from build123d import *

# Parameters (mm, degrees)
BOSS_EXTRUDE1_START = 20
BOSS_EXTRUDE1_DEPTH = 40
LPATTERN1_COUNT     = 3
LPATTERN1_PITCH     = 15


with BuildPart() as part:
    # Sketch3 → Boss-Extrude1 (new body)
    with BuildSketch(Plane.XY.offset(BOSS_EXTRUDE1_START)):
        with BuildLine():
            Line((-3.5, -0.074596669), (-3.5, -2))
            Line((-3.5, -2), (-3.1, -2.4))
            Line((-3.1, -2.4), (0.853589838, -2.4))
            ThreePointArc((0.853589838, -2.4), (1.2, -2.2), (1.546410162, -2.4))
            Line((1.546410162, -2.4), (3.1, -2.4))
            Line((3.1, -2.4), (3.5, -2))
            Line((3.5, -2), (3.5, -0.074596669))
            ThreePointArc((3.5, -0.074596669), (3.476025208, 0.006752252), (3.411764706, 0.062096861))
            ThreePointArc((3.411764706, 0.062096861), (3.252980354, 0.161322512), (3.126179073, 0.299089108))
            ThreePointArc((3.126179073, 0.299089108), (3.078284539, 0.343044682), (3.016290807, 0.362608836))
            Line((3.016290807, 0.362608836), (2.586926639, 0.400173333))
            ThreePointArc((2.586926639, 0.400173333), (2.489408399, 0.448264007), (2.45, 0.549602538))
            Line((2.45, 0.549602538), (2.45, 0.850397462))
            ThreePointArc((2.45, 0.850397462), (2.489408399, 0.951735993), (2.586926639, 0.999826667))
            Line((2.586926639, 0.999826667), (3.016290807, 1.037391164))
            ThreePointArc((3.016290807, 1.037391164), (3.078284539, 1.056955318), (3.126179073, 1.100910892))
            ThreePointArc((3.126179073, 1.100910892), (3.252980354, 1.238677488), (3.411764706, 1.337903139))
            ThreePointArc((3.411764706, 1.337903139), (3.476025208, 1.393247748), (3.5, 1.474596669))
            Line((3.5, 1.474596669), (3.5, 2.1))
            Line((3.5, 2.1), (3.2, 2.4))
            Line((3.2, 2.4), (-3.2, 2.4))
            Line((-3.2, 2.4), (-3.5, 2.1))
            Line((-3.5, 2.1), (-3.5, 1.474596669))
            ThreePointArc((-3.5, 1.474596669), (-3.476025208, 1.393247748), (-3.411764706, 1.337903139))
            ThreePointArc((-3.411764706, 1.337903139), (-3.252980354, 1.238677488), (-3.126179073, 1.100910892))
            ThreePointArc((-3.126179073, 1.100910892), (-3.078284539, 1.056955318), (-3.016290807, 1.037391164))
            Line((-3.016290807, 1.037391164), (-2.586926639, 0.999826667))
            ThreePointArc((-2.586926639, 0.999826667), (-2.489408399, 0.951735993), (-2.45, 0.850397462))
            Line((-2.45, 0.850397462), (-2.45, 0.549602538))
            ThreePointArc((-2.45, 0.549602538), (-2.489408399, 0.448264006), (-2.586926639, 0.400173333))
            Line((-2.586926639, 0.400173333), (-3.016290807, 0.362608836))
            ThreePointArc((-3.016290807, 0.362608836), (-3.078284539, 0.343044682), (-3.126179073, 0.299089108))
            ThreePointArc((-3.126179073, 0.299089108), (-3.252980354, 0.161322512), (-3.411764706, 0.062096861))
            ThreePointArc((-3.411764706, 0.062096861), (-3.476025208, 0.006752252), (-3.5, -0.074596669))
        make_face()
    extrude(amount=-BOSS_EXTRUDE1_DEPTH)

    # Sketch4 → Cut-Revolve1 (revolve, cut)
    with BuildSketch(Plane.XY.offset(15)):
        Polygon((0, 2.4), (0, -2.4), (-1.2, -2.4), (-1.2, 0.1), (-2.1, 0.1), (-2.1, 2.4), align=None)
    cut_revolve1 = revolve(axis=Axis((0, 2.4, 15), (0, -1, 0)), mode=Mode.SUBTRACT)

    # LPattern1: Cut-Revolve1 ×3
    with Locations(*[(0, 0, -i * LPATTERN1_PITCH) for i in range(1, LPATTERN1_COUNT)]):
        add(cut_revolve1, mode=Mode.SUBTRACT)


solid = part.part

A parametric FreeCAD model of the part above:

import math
import FreeCAD as App
import Part
import Sketcher

V = App.Vector
Q = App.Units.Quantity


def add_polygon(sketch, points):
    """Adds a closed chain of lines whose ends are joined by coincident constraints."""
    first, n = sketch.GeometryCount, len(points)
    for a, b in zip(points, points[1:] + points[:1]):
        sketch.addGeometry(Part.LineSegment(App.Vector(*a, 0), App.Vector(*b, 0)), False)
    for i in range(n):
        sketch.addConstraint(Sketcher.Constraint("Coincident", first + i, 2, first + (i + 1) % n, 1))

doc = App.newDocument("Part")
body = doc.addObject("PartDesign::Body", "Body")

# Sketch on XY plane
sketch1 = doc.addObject("Sketcher::SketchObject", "Sketch")
body.addObject(sketch1)
sketch1.AttachmentSupport = (doc.XY_Plane, [""])
sketch1.MapMode = "FlatFace"
sketch1.AttachmentOffset = App.Placement(V(0, 0, 20), App.Rotation())
sketch1.addGeometry([
    Part.LineSegment(V(-3.5, -0.07, 0), V(-3.5, -2, 0)),  # 0
    Part.LineSegment(V(-3.5, -2, 0), V(-3.1, -2.4, 0)),  # 1
    Part.LineSegment(V(-3.1, -2.4, 0), V(0.85, -2.4, 0)),  # 2
    Part.ArcOfCircle(Part.Circle(V(1.2, -2.6, 0), V(0, 0, 1), 0.4), math.radians(30), math.radians(150)),  # 3
    Part.LineSegment(V(1.55, -2.4, 0), V(3.1, -2.4, 0)),  # 4
    Part.LineSegment(V(3.1, -2.4, 0), V(3.5, -2, 0)),  # 5
    Part.LineSegment(V(3.5, -2, 0), V(3.5, -0.07, 0)),  # 6
    Part.ArcOfCircle(Part.Circle(V(3.35, -0.07, 0), V(0, 0, 1), 0.15), math.radians(0), math.radians(66)),  # 7
    Part.ArcOfCircle(Part.Circle(V(3.7, 0.7, 0), V(0, 0, 1), 0.7), math.radians(-145), math.radians(-114)),  # 8
    Part.ArcOfCircle(Part.Circle(V(3, 0.21, 0), V(0, 0, 1), 0.15), math.radians(35), math.radians(85)),  # 9
    Part.LineSegment(V(3.02, 0.36, 0), V(2.59, 0.4, 0)),  # 10
    Part.ArcOfCircle(Part.Circle(V(2.6, 0.55, 0), V(0, 0, 1), 0.15), math.radians(180), math.radians(265)),  # 11
    Part.LineSegment(V(2.45, 0.55, 0), V(2.45, 0.85, 0)),  # 12
    Part.ArcOfCircle(Part.Circle(V(2.6, 0.85, 0), V(0, 0, 1), 0.15), math.radians(95), math.radians(180)),  # 13
    Part.LineSegment(V(2.59, 1, 0), V(3.02, 1.04, 0)),  # 14
    Part.ArcOfCircle(Part.Circle(V(3, 1.19, 0), V(0, 0, 1), 0.15), math.radians(-85), math.radians(-35)),  # 15
    Part.ArcOfCircle(Part.Circle(V(3.7, 0.7, 0), V(0, 0, 1), 0.7), math.radians(114), math.radians(145)),  # 16
    Part.ArcOfCircle(Part.Circle(V(3.35, 1.47, 0), V(0, 0, 1), 0.15), math.radians(-66), math.radians(0)),  # 17
    Part.LineSegment(V(3.5, 1.47, 0), V(3.5, 2.1, 0)),  # 18
    Part.LineSegment(V(3.5, 2.1, 0), V(3.2, 2.4, 0)),  # 19
    Part.LineSegment(V(3.2, 2.4, 0), V(-3.2, 2.4, 0)),  # 20
    Part.LineSegment(V(-3.2, 2.4, 0), V(-3.5, 2.1, 0)),  # 21
    Part.LineSegment(V(-3.5, 2.1, 0), V(-3.5, 1.47, 0)),  # 22
    Part.ArcOfCircle(Part.Circle(V(-3.35, 1.47, 0), V(0, 0, 1), 0.15), math.radians(180), math.radians(246)),  # 23
    Part.ArcOfCircle(Part.Circle(V(-3.7, 0.7, 0), V(0, 0, 1), 0.7), math.radians(35), math.radians(66)),  # 24
    Part.ArcOfCircle(Part.Circle(V(-3, 1.19, 0), V(0, 0, 1), 0.15), math.radians(-145), math.radians(-95)),  # 25
    Part.LineSegment(V(-3.02, 1.04, 0), V(-2.59, 1, 0)),  # 26
    Part.ArcOfCircle(Part.Circle(V(-2.6, 0.85, 0), V(0, 0, 1), 0.15), math.radians(0), math.radians(85)),  # 27
    Part.LineSegment(V(-2.45, 0.85, 0), V(-2.45, 0.55, 0)),  # 28
    Part.ArcOfCircle(Part.Circle(V(-2.6, 0.55, 0), V(0, 0, 1), 0.15), math.radians(-85), math.radians(0)),  # 29
    Part.LineSegment(V(-2.59, 0.4, 0), V(-3.02, 0.36, 0)),  # 30
    Part.ArcOfCircle(Part.Circle(V(-3, 0.21, 0), V(0, 0, 1), 0.15), math.radians(95), math.radians(145)),  # 31
    Part.ArcOfCircle(Part.Circle(V(-3.7, 0.7, 0), V(0, 0, 1), 0.7), math.radians(-66), math.radians(-35)),  # 32
    Part.ArcOfCircle(Part.Circle(V(-3.35, -0.07, 0), V(0, 0, 1), 0.15), math.radians(114), math.radians(180)),  # 33
], False)
sketch1.addConstraint([
    Sketcher.Constraint("Coincident", 0, 2, 1, 1),
    Sketcher.Constraint("Coincident", 1, 2, 2, 1),
    Sketcher.Constraint("Coincident", 2, 2, 3, 2),
    Sketcher.Constraint("Coincident", 3, 1, 4, 1),
    Sketcher.Constraint("Coincident", 4, 2, 5, 1),
    Sketcher.Constraint("Coincident", 5, 2, 6, 1),
    Sketcher.Constraint("Tangent", 6, 2, 7, 1),
    Sketcher.Constraint("Tangent", 7, 2, 8, 2),
    Sketcher.Constraint("Tangent", 8, 1, 9, 1),
    Sketcher.Constraint("Tangent", 9, 2, 10, 1),
    Sketcher.Constraint("Tangent", 10, 2, 11, 2),
    Sketcher.Constraint("Tangent", 11, 1, 12, 1),
    Sketcher.Constraint("Tangent", 12, 2, 13, 2),
    Sketcher.Constraint("Tangent", 13, 1, 14, 1),
    Sketcher.Constraint("Tangent", 14, 2, 15, 1),
    Sketcher.Constraint("Tangent", 15, 2, 16, 2),
    Sketcher.Constraint("Tangent", 16, 1, 17, 1),
    Sketcher.Constraint("Tangent", 17, 2, 18, 1),
    Sketcher.Constraint("Coincident", 18, 2, 19, 1),
    Sketcher.Constraint("Coincident", 19, 2, 20, 1),
    Sketcher.Constraint("Coincident", 20, 2, 21, 1),
    Sketcher.Constraint("Coincident", 21, 2, 22, 1),
    Sketcher.Constraint("Tangent", 22, 2, 23, 1),
    Sketcher.Constraint("Tangent", 23, 2, 24, 2),
    Sketcher.Constraint("Tangent", 24, 1, 25, 1),
    Sketcher.Constraint("Tangent", 25, 2, 26, 1),
    Sketcher.Constraint("Tangent", 26, 2, 27, 2),
    Sketcher.Constraint("Tangent", 27, 1, 28, 1),
    Sketcher.Constraint("Tangent", 28, 2, 29, 2),
    Sketcher.Constraint("Tangent", 29, 1, 30, 1),
    Sketcher.Constraint("Tangent", 30, 2, 31, 1),
    Sketcher.Constraint("Tangent", 31, 2, 32, 2),
    Sketcher.Constraint("Tangent", 32, 1, 33, 1),
    Sketcher.Constraint("Tangent", 33, 2, 0, 1),
    Sketcher.Constraint("Vertical", 0),
    Sketcher.Constraint("Horizontal", 2),
    Sketcher.Constraint("Horizontal", 4),
    Sketcher.Constraint("Vertical", 6),
    Sketcher.Constraint("Vertical", 12),
    Sketcher.Constraint("Vertical", 18),
    Sketcher.Constraint("Horizontal", 20),
    Sketcher.Constraint("Vertical", 22),
    Sketcher.Constraint("Vertical", 28),
    Sketcher.Constraint("Coincident", 16, 3, 8, 3),
    Sketcher.Constraint("Coincident", 32, 3, 24, 3),
    Sketcher.Constraint("Equal", 7, 9),
    Sketcher.Constraint("Equal", 9, 11),
    Sketcher.Constraint("Equal", 11, 13),
    Sketcher.Constraint("Equal", 13, 15),
    Sketcher.Constraint("Equal", 8, 16),
    Sketcher.Constraint("Equal", 15, 17),
    Sketcher.Constraint("Equal", 17, 23),
    Sketcher.Constraint("Equal", 16, 24),
    Sketcher.Constraint("Equal", 23, 25),
    Sketcher.Constraint("Equal", 25, 27),
    Sketcher.Constraint("Equal", 27, 29),
    Sketcher.Constraint("Equal", 29, 31),
    Sketcher.Constraint("Equal", 24, 32),
    Sketcher.Constraint("Equal", 31, 33),
    Sketcher.Constraint("Symmetric", 17, 3, 23, 3, -2),
    Sketcher.Constraint("Symmetric", 15, 3, 25, 3, -2),
    Sketcher.Constraint("Symmetric", 13, 3, 27, 3, -2),
    Sketcher.Constraint("Symmetric", 1, 2, 4, 2, -2),
    Sketcher.Constraint("Symmetric", 0, 2, 5, 2, -2),
    Sketcher.Constraint("Symmetric", 10, 2, 29, 1, -2),
    Sketcher.Constraint("Perpendicular", 1, 5),
    Sketcher.Constraint("Perpendicular", 5, 19),
    Sketcher.Constraint("Perpendicular", 19, 21),
    Sketcher.Constraint("Parallel", 10, 26),
    Sketcher.Constraint("Horizontal", 18, 2, 21, 2),
    Sketcher.Constraint("Vertical", 9, 3, 15, 3),
    Sketcher.Constraint("Vertical", 7, 3, 17, 3),
    Sketcher.Constraint("Radius", 3, 0.4),
    Sketcher.Constraint("Radius", 8, 0.7),
    Sketcher.Constraint("Angle", 10, Q("175 deg")),
    Sketcher.Constraint("Radius", 7, 0.15),
    Sketcher.Constraint("DistanceX", 20, 2, 20, 1, 6.4),
    Sketcher.Constraint("DistanceY", 0, 2, -1, 1, 2.0),
    Sketcher.Constraint("DistanceX", -1, 1, 3, 3, 1.2),
    Sketcher.Constraint("DistanceY", 3, 3, -1, 1, 2.6),
    Sketcher.Constraint("DistanceX", -1, 1, 8, 3, 3.7),
    Sketcher.Constraint("DistanceY", -1, 1, 8, 3, 0.7),
    Sketcher.Constraint("DistanceX", -1, 1, 11, 3, 2.6),
    Sketcher.Constraint("DistanceX", 0, 2, -1, 1, 3.5),
    Sketcher.Constraint("DistanceX", 1, 2, -1, 1, 3.1),
    Sketcher.Constraint("DistanceY", -1, 1, 18, 2, 2.1),
    Sketcher.Constraint("DistanceY", 7, 3, 11, 3, 0.624199),
])
pad1 = doc.addObject("PartDesign::Pad", "Pad")
body.addObject(pad1)
pad1.Profile = sketch1
pad1.Length = 40
pad1.Reversed = True

# Sketch on XY plane
sketch2 = doc.addObject("Sketcher::SketchObject", "Sketch001")
body.addObject(sketch2)
sketch2.AttachmentSupport = (doc.XY_Plane, [""])
sketch2.MapMode = "FlatFace"
sketch2.AttachmentOffset = App.Placement(V(0, 0, 15), App.Rotation())
add_polygon(sketch2, [(0, -2.4), (0, 2.4), (-2.1, 2.4), (-2.1, 0.1), (-1.2, 0.1), (-1.2, -2.4)])  # lines 0-5
sketch2.addConstraint([
    Sketcher.Constraint("Vertical", 0),
    Sketcher.Constraint("Horizontal", 1),
    Sketcher.Constraint("Vertical", 2),
    Sketcher.Constraint("Horizontal", 3),
    Sketcher.Constraint("Vertical", 4),
    Sketcher.Constraint("Horizontal", 5),
    Sketcher.Constraint("Symmetric", 0, 2, 5, 2, -1, 1),
    Sketcher.Constraint("DistanceX", 1, 2, 1, 1, 2.1),
    Sketcher.Constraint("DistanceX", 3, 1, 3, 2, 0.9),
    Sketcher.Constraint("DistanceY", 0, 1, 0, 2, 4.8),
    Sketcher.Constraint("DistanceY", 2, 2, 2, 1, 2.3),
])
groove = doc.addObject("PartDesign::Groove", "Groove")
body.addObject(groove)
groove.Profile = sketch2
groove.ReferenceAxis = (sketch2, ["V_Axis"])
groove.Angle = 360
doc.recompute()

linearpattern = doc.addObject("PartDesign::LinearPattern", "LinearPattern")
body.addObject(linearpattern)
linearpattern.Originals = [groove]
linearpattern.Direction = (doc.Z_Axis, [""])
linearpattern.Mode = "offset"
linearpattern.Offset = 15
linearpattern.Occurrences = 3
linearpattern.Reversed = True
body.Tip = linearpattern

doc.recompute()
